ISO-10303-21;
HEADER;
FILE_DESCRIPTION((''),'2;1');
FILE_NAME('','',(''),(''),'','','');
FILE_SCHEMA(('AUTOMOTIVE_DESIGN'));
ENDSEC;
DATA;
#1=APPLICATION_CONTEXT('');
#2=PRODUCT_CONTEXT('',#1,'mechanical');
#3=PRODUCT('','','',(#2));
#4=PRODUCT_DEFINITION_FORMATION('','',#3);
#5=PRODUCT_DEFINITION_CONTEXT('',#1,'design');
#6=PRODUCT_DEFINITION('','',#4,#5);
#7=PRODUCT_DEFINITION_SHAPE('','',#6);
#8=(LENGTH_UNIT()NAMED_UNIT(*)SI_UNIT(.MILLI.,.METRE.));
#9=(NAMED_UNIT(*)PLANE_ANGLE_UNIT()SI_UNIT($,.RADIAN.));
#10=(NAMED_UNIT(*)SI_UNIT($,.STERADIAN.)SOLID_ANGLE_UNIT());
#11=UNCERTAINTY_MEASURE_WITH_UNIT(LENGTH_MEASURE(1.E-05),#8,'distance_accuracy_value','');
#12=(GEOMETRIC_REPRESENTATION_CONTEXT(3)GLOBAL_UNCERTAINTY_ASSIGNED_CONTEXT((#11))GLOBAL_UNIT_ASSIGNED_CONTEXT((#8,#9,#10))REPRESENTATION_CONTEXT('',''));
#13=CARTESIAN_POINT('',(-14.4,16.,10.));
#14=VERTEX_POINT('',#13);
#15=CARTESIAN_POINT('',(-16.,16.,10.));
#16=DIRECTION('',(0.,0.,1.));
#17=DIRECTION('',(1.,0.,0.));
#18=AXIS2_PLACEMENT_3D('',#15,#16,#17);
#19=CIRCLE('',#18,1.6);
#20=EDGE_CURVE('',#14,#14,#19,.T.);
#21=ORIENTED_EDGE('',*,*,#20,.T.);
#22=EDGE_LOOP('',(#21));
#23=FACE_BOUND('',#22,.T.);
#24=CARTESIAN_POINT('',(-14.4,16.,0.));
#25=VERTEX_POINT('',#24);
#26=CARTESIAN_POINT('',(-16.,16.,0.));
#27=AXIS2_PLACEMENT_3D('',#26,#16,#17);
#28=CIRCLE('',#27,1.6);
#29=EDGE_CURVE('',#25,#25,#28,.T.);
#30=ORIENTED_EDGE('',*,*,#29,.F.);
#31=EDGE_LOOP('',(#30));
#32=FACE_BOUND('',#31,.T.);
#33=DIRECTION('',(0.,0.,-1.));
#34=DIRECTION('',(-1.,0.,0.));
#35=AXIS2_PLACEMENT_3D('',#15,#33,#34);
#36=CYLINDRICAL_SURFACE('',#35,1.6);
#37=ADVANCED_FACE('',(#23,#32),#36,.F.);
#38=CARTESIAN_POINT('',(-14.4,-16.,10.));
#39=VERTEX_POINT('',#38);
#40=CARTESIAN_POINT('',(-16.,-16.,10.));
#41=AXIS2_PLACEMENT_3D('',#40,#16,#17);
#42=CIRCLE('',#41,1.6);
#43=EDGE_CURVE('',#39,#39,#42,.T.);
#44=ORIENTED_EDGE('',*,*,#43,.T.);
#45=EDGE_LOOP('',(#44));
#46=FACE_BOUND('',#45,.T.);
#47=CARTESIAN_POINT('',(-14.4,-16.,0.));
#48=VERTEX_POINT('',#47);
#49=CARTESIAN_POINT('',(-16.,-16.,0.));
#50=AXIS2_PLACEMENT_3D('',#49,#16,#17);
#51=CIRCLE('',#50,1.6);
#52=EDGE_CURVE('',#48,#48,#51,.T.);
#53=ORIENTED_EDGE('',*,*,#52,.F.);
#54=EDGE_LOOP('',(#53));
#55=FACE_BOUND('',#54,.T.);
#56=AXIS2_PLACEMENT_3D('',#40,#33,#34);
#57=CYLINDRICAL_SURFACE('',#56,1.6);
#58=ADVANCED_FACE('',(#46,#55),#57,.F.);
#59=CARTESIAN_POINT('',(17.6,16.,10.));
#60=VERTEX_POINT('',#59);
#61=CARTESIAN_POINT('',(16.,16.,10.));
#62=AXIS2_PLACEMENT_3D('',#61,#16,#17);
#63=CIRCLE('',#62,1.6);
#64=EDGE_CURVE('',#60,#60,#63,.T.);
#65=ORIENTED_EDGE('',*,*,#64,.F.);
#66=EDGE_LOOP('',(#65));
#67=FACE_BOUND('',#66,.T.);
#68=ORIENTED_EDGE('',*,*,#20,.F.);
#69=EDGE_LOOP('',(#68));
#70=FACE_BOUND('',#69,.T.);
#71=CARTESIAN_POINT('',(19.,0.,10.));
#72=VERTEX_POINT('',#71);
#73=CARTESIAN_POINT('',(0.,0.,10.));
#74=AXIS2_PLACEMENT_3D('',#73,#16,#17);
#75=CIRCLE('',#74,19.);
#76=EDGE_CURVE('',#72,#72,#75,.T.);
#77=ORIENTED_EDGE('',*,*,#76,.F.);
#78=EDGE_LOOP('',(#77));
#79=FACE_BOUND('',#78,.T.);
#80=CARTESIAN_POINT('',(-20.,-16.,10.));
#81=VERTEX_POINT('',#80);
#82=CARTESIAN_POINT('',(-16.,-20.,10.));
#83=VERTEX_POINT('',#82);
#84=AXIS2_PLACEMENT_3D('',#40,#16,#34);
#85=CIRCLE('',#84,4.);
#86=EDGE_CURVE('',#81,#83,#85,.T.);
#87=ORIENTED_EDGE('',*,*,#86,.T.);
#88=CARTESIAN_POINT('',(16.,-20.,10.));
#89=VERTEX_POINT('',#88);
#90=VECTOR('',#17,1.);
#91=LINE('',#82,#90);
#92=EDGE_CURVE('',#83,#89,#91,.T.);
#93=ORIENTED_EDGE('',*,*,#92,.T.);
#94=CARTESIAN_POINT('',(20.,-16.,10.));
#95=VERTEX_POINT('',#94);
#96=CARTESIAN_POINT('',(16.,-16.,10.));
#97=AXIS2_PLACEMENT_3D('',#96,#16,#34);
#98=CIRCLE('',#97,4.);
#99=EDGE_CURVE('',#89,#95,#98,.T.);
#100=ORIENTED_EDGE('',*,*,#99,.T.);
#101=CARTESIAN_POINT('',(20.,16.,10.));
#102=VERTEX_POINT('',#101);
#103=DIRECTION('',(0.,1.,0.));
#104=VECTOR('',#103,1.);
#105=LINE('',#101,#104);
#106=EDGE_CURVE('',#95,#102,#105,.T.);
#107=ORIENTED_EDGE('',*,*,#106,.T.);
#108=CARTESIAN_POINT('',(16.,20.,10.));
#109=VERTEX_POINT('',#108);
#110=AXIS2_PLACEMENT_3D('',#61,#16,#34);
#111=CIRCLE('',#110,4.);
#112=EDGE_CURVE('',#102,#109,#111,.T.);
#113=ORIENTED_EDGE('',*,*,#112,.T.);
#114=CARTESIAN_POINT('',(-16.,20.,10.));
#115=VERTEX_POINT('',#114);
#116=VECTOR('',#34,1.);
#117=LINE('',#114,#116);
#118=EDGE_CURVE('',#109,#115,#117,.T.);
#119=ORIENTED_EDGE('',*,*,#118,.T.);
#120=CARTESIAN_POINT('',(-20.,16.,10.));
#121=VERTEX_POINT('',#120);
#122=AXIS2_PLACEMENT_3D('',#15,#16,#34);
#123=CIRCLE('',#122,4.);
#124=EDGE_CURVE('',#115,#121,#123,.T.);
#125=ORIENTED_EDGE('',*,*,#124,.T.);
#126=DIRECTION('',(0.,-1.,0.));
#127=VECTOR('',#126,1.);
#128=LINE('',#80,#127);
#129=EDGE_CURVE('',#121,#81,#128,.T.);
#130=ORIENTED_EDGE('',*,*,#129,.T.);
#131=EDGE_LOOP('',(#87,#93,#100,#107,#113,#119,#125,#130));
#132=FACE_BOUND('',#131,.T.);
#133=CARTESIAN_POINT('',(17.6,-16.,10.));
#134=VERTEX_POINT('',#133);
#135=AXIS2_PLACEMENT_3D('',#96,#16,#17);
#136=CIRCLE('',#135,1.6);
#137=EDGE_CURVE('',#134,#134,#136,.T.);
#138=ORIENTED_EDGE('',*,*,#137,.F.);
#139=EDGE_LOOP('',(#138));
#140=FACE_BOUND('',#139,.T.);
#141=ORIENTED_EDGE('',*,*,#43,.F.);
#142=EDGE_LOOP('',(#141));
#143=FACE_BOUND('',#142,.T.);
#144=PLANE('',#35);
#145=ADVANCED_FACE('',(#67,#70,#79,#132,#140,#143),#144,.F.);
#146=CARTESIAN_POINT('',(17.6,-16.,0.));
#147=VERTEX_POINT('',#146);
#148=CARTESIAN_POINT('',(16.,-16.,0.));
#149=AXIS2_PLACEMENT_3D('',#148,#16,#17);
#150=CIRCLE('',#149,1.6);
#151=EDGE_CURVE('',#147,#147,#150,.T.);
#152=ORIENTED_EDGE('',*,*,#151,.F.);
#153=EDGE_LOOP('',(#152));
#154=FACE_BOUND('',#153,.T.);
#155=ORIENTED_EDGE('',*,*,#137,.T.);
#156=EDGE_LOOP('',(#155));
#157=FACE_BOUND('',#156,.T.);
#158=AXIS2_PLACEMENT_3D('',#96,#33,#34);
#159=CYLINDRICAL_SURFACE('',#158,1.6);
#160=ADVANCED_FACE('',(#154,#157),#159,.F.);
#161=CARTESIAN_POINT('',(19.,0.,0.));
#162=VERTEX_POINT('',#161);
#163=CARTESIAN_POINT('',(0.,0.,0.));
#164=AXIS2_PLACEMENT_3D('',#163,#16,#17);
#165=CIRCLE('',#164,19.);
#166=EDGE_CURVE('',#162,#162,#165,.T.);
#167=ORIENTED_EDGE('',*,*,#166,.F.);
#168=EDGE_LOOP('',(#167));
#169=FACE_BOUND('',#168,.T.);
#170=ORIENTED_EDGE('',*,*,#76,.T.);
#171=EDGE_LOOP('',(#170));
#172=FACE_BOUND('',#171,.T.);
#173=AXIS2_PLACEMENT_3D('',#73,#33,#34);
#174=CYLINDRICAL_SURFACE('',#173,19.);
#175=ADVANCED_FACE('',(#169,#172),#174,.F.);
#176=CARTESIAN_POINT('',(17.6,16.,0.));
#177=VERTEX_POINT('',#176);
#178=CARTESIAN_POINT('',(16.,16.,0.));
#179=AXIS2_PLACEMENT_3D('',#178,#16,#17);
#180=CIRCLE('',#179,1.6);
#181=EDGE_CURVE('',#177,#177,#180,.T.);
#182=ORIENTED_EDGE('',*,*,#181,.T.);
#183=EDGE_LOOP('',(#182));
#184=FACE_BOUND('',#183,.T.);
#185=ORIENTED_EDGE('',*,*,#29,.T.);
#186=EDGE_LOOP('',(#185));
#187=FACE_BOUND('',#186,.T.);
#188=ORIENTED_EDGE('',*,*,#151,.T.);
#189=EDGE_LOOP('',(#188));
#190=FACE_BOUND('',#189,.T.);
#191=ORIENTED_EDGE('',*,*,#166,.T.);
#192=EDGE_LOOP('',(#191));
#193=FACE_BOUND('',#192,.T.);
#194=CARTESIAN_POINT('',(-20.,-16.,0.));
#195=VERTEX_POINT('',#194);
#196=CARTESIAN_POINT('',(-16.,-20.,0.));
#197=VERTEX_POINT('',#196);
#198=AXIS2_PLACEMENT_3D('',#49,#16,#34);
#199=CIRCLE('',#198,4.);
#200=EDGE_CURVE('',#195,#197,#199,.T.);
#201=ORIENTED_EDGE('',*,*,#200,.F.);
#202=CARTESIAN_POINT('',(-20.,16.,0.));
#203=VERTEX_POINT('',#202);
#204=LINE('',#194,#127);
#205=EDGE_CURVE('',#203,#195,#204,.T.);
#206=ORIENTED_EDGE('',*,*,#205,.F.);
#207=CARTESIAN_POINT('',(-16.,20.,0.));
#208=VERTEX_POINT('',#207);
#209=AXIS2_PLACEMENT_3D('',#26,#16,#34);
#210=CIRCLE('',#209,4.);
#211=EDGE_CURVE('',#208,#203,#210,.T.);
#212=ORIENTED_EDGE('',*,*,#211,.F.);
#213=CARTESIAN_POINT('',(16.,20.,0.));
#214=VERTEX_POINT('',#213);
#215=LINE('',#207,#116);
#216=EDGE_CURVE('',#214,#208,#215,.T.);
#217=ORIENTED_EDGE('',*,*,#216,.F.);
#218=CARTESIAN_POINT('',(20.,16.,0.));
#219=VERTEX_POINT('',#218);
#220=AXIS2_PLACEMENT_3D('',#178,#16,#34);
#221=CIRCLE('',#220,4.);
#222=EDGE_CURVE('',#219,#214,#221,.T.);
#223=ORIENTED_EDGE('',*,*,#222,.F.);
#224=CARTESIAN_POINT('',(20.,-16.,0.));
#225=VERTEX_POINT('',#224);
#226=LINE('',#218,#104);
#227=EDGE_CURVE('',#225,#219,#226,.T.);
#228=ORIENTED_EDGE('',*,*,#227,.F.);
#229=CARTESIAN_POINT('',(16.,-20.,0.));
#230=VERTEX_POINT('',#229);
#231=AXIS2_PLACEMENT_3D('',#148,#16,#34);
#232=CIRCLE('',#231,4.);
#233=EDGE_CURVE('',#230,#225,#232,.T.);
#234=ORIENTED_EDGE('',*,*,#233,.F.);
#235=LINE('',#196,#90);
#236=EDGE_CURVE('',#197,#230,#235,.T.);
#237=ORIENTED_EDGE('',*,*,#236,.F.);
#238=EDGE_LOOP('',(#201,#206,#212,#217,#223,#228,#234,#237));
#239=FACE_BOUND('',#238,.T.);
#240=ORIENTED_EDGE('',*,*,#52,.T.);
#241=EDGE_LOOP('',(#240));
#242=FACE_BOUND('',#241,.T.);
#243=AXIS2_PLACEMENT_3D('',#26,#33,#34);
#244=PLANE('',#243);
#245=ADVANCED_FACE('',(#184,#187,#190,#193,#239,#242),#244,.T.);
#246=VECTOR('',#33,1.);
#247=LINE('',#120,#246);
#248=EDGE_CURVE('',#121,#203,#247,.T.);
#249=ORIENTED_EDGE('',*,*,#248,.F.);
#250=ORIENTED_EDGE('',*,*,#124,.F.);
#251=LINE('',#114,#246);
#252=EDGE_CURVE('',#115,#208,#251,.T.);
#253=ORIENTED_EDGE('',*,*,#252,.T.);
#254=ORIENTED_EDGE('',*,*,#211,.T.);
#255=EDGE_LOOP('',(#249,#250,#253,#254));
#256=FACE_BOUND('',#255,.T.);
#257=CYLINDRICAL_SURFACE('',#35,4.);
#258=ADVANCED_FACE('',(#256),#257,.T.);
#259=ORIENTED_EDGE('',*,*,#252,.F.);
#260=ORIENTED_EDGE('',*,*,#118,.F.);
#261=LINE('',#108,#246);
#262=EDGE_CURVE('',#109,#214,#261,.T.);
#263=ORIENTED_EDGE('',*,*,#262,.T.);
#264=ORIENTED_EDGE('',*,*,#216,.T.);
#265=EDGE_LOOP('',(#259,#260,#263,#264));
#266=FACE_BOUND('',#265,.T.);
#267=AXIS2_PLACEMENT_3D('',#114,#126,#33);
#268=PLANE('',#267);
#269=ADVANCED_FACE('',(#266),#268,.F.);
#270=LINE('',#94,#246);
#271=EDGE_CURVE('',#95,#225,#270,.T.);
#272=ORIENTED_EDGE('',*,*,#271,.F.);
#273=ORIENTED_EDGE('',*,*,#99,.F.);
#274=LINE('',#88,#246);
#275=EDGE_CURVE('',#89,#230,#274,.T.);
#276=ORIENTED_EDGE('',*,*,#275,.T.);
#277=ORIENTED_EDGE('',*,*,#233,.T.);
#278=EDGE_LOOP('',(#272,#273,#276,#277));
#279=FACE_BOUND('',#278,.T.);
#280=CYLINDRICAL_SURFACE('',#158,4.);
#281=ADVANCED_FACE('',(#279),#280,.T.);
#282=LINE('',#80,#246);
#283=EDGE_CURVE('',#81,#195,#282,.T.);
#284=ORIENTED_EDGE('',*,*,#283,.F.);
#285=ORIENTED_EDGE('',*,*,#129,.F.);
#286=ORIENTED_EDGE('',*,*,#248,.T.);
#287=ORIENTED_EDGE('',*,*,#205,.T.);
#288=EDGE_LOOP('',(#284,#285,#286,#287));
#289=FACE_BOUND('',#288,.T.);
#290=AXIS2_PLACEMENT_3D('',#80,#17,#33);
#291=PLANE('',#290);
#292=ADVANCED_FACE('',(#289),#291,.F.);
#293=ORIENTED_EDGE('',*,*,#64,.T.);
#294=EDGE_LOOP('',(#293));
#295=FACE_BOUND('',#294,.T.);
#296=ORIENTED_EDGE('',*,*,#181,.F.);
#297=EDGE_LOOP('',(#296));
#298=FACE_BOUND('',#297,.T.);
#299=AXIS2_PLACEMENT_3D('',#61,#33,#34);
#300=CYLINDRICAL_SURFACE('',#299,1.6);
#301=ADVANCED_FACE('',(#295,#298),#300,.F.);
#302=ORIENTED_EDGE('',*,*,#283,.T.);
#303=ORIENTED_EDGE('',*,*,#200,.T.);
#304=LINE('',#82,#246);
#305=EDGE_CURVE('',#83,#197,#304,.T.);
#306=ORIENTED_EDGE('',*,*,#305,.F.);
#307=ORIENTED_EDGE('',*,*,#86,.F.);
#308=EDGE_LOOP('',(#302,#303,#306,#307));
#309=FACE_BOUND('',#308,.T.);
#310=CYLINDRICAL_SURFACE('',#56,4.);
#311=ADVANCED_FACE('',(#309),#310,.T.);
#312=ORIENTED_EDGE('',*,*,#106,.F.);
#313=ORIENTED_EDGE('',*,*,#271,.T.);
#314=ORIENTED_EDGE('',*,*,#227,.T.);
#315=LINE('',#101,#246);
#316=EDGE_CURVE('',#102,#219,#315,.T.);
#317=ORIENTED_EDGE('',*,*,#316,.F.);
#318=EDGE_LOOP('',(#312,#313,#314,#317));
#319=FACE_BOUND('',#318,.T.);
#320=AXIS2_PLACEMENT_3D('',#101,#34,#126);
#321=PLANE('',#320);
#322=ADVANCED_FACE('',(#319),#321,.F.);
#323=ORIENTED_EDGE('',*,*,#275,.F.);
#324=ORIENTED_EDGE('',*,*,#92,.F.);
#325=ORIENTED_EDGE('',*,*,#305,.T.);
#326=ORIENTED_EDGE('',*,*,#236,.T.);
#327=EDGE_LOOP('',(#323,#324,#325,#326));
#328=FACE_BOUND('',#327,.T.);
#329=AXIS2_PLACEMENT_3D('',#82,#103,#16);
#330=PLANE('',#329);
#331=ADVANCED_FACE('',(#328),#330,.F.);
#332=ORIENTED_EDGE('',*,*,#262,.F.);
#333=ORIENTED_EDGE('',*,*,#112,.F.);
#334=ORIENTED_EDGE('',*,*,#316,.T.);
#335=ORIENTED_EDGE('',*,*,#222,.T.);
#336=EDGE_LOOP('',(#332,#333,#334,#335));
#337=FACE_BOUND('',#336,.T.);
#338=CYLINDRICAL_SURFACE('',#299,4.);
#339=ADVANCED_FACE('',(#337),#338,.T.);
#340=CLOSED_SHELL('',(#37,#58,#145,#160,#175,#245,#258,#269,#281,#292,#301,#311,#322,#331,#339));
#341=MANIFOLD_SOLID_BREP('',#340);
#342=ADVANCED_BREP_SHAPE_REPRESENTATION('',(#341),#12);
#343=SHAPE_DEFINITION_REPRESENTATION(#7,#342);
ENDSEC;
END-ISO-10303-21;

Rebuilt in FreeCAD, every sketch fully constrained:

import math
import FreeCAD as App
import Part
import Sketcher

doc = App.newDocument("Part")
body = doc.addObject("PartDesign::Body", "Body")

# Sketch on XY plane
sketch1 = body.newObject("Sketcher::SketchObject", "Sketch")
sketch1.AttachmentSupport = (doc.getObject("XY_Plane"), [""])
sketch1.MapMode = "FlatFace"
sketch1.addGeometry([
    Part.LineSegment(App.Vector(16, 20, 0), App.Vector(-16, 20, 0)),  # 0
    Part.ArcOfCircle(Part.Circle(App.Vector(-16, 16, 0), App.Vector(0, 0, 1), 4), math.radians(90), math.radians(180)),  # 1
    Part.LineSegment(App.Vector(-20, 16, 0), App.Vector(-20, -16, 0)),  # 2
    Part.ArcOfCircle(Part.Circle(App.Vector(-16, -16, 0), App.Vector(0, 0, 1), 4), math.radians(180), math.radians(270)),  # 3
    Part.LineSegment(App.Vector(-16, -20, 0), App.Vector(16, -20, 0)),  # 4
    Part.ArcOfCircle(Part.Circle(App.Vector(16, -16, 0), App.Vector(0, 0, 1), 4), math.radians(-90), math.radians(0)),  # 5
    Part.LineSegment(App.Vector(20, -16, 0), App.Vector(20, 16, 0)),  # 6
    Part.ArcOfCircle(Part.Circle(App.Vector(16, 16, 0), App.Vector(0, 0, 1), 4), math.radians(0), math.radians(90)),  # 7
    Part.Circle(App.Vector(16, -16, 0), App.Vector(0, 0, 1), 1.6),  # 8
    Part.Circle(App.Vector(-16, -16, 0), App.Vector(0, 0, 1), 1.6),  # 9
    Part.Circle(App.Vector(16, 16, 0), App.Vector(0, 0, 1), 1.6),  # 10
    Part.Circle(App.Vector(0, 0, 0), App.Vector(0, 0, 1), 19),  # 11
    Part.Circle(App.Vector(-16, 16, 0), App.Vector(0, 0, 1), 1.6),  # 12
], False)
sketch1.addConstraint([
    Sketcher.Constraint("Tangent", 0, 2, 1, 1),
    Sketcher.Constraint("Tangent", 1, 2, 2, 1),
    Sketcher.Constraint("Tangent", 2, 2, 3, 1),
    Sketcher.Constraint("Tangent", 3, 2, 4, 1),
    Sketcher.Constraint("Tangent", 4, 2, 5, 1),
    Sketcher.Constraint("Tangent", 5, 2, 6, 1),
    Sketcher.Constraint("Tangent", 6, 2, 7, 1),
    Sketcher.Constraint("Tangent", 7, 2, 0, 1),
    Sketcher.Constraint("Horizontal", 0),
    Sketcher.Constraint("Vertical", 2),
    Sketcher.Constraint("Horizontal", 4),
    Sketcher.Constraint("Vertical", 6),
    Sketcher.Constraint("Coincident", 11, 3, -1, 1),
    Sketcher.Constraint("Coincident", 8, 3, 5, 3),
    Sketcher.Constraint("Coincident", 9, 3, 3, 3),
    Sketcher.Constraint("Coincident", 10, 3, 7, 3),
    Sketcher.Constraint("Coincident", 12, 3, 1, 3),
    Sketcher.Constraint("Equal", 1, 3),
    Sketcher.Constraint("Equal", 3, 5),
    Sketcher.Constraint("Equal", 5, 7),
    Sketcher.Constraint("Equal", 8, 9),
    Sketcher.Constraint("Equal", 9, 10),
    Sketcher.Constraint("Equal", 10, 12),
    Sketcher.Constraint("Symmetric", 1, 3, 5, 3, -1, 1),
    Sketcher.Constraint("Equal", 4, 2),
    Sketcher.Constraint("Diameter", 11, 38.0),
    Sketcher.Constraint("Radius", 1, 4.0),
    Sketcher.Constraint("Diameter", 8, 3.2),
    Sketcher.Constraint("DistanceX", 0, 2, 0, 1, 32.0),
])
pad1 = body.newObject("PartDesign::Pad", "Pad")
pad1.Profile = sketch1
pad1.Length = 10

doc.recompute()
